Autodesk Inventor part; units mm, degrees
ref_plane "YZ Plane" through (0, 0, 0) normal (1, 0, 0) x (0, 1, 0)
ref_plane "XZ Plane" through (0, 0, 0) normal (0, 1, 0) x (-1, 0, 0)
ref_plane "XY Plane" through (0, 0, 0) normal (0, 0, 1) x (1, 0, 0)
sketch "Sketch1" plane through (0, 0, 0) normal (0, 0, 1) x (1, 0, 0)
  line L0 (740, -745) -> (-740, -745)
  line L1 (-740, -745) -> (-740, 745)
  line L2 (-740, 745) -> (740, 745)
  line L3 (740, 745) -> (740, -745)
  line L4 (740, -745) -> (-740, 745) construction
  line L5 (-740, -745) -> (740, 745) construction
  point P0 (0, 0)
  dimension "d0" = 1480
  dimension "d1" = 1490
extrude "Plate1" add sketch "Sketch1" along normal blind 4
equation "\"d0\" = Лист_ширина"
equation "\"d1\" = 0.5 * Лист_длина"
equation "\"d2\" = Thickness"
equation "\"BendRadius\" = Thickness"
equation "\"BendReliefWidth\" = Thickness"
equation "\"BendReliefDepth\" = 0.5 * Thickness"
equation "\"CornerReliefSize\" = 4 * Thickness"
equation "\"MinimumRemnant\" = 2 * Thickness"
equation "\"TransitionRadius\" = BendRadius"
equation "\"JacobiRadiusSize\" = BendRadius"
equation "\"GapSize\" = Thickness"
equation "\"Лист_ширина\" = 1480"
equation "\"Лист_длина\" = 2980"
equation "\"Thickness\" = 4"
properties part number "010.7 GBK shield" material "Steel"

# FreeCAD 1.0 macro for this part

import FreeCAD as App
import Part
import Sketcher

V = App.Vector

doc = App.newDocument("Part")
params = doc.addObject("Spreadsheet::Sheet", "Params")
for row, (alias, value) in enumerate([
    ("sketch1_width", "1480 mm"),
    ("sketch1_height", "1490 mm"),
    ("pad1_length", "4 mm"),
], start=1):
    params.set(f"A{row}", alias)
    params.set(f"B{row}", "=" + value)
    params.setAlias(f"B{row}", alias)

body = doc.addObject("PartDesign::Body", "Body")

# Sketch on XY plane
sketch1 = body.newObject("Sketcher::SketchObject", "Sketch")
sketch1.AttachmentSupport = (doc.getObject("XY_Plane"), [""])
sketch1.MapMode = "FlatFace"
sketch1.addGeometry([
    Part.LineSegment(V(-740, -745, 0), V(740, -745, 0)),
    Part.LineSegment(V(740, -745, 0), V(740, 745, 0)),
    Part.LineSegment(V(740, 745, 0), V(-740, 745, 0)),
    Part.LineSegment(V(-740, 745, 0), V(-740, -745, 0)),
], False)
sketch1.addConstraint([
    Sketcher.Constraint("Coincident", 0, 2, 1, 1),
    Sketcher.Constraint("Coincident", 1, 2, 2, 1),
    Sketcher.Constraint("Coincident", 2, 2, 3, 1),
    Sketcher.Constraint("Coincident", 3, 2, 0, 1),
    Sketcher.Constraint("Horizontal", 0),
    Sketcher.Constraint("Vertical", 1),
    Sketcher.Constraint("Horizontal", 2),
    Sketcher.Constraint("Vertical", 3),
    Sketcher.Constraint("Symmetric", 0, 2, 2, 2, -1, 1),
    Sketcher.Constraint("DistanceX", 0, 1, 0, 2, 1480.0),
    Sketcher.Constraint("DistanceY", 1, 1, 1, 2, 1490.0),
])
sketch1.setExpression("Constraints[9]", "Params.sketch1_width")
sketch1.setExpression("Constraints[10]", "Params.sketch1_height")
pad1 = body.newObject("PartDesign::Pad", "Pad")
pad1.Profile = sketch1
pad1.setExpression("Length", "Params.pad1_length")

doc.recompute()
